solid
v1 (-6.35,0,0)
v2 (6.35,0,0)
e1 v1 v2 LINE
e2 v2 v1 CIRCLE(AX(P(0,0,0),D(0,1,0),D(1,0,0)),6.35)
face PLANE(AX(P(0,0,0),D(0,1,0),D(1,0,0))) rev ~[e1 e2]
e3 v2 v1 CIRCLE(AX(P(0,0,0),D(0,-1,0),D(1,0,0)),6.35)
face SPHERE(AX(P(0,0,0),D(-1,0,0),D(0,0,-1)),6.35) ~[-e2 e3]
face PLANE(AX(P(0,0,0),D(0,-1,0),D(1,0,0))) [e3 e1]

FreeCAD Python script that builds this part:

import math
import FreeCAD as App
import Part
import Sketcher

V = App.Vector
Q = App.Units.Quantity

doc = App.newDocument("Part")
body = doc.addObject("PartDesign::Body", "Body")

# Sketch on XY plane
sketch1 = doc.addObject("Sketcher::SketchObject", "Sketch")
body.addObject(sketch1)
sketch1.AttachmentSupport = (doc.XY_Plane, [""])
sketch1.MapMode = "FlatFace"
sketch1.addGeometry(Part.LineSegment(V(-6, 0, 0), V(6, 0, 0)), False)
sketch1.addGeometry(Part.ArcOfCircle(Part.Circle(V(0, 0, 0), V(0, 0, 1), 6), math.radians(0), math.radians(180)), False)
sketch1.addConstraint(Sketcher.Constraint("Coincident", 0, 1, 1, 2))
sketch1.addConstraint(Sketcher.Constraint("Coincident", 1, 1, 0, 2))
sketch1.addConstraint(Sketcher.Constraint("Horizontal", 0))
sketch1.addConstraint(Sketcher.Constraint("Coincident", 1, 3, -1, 1))
sketch1.addConstraint(Sketcher.Constraint("PointOnObject", 0, 1, -1))
sketch1.addConstraint(Sketcher.Constraint("Radius", 1, Q("0.25 in")))
revolution = doc.addObject("PartDesign::Revolution", "Revolution")
body.addObject(revolution)
revolution.Profile = sketch1
revolution.ReferenceAxis = (sketch1, ["H_Axis"])
revolution.Angle = 180
revolution.Midplane = True

doc.recompute()
